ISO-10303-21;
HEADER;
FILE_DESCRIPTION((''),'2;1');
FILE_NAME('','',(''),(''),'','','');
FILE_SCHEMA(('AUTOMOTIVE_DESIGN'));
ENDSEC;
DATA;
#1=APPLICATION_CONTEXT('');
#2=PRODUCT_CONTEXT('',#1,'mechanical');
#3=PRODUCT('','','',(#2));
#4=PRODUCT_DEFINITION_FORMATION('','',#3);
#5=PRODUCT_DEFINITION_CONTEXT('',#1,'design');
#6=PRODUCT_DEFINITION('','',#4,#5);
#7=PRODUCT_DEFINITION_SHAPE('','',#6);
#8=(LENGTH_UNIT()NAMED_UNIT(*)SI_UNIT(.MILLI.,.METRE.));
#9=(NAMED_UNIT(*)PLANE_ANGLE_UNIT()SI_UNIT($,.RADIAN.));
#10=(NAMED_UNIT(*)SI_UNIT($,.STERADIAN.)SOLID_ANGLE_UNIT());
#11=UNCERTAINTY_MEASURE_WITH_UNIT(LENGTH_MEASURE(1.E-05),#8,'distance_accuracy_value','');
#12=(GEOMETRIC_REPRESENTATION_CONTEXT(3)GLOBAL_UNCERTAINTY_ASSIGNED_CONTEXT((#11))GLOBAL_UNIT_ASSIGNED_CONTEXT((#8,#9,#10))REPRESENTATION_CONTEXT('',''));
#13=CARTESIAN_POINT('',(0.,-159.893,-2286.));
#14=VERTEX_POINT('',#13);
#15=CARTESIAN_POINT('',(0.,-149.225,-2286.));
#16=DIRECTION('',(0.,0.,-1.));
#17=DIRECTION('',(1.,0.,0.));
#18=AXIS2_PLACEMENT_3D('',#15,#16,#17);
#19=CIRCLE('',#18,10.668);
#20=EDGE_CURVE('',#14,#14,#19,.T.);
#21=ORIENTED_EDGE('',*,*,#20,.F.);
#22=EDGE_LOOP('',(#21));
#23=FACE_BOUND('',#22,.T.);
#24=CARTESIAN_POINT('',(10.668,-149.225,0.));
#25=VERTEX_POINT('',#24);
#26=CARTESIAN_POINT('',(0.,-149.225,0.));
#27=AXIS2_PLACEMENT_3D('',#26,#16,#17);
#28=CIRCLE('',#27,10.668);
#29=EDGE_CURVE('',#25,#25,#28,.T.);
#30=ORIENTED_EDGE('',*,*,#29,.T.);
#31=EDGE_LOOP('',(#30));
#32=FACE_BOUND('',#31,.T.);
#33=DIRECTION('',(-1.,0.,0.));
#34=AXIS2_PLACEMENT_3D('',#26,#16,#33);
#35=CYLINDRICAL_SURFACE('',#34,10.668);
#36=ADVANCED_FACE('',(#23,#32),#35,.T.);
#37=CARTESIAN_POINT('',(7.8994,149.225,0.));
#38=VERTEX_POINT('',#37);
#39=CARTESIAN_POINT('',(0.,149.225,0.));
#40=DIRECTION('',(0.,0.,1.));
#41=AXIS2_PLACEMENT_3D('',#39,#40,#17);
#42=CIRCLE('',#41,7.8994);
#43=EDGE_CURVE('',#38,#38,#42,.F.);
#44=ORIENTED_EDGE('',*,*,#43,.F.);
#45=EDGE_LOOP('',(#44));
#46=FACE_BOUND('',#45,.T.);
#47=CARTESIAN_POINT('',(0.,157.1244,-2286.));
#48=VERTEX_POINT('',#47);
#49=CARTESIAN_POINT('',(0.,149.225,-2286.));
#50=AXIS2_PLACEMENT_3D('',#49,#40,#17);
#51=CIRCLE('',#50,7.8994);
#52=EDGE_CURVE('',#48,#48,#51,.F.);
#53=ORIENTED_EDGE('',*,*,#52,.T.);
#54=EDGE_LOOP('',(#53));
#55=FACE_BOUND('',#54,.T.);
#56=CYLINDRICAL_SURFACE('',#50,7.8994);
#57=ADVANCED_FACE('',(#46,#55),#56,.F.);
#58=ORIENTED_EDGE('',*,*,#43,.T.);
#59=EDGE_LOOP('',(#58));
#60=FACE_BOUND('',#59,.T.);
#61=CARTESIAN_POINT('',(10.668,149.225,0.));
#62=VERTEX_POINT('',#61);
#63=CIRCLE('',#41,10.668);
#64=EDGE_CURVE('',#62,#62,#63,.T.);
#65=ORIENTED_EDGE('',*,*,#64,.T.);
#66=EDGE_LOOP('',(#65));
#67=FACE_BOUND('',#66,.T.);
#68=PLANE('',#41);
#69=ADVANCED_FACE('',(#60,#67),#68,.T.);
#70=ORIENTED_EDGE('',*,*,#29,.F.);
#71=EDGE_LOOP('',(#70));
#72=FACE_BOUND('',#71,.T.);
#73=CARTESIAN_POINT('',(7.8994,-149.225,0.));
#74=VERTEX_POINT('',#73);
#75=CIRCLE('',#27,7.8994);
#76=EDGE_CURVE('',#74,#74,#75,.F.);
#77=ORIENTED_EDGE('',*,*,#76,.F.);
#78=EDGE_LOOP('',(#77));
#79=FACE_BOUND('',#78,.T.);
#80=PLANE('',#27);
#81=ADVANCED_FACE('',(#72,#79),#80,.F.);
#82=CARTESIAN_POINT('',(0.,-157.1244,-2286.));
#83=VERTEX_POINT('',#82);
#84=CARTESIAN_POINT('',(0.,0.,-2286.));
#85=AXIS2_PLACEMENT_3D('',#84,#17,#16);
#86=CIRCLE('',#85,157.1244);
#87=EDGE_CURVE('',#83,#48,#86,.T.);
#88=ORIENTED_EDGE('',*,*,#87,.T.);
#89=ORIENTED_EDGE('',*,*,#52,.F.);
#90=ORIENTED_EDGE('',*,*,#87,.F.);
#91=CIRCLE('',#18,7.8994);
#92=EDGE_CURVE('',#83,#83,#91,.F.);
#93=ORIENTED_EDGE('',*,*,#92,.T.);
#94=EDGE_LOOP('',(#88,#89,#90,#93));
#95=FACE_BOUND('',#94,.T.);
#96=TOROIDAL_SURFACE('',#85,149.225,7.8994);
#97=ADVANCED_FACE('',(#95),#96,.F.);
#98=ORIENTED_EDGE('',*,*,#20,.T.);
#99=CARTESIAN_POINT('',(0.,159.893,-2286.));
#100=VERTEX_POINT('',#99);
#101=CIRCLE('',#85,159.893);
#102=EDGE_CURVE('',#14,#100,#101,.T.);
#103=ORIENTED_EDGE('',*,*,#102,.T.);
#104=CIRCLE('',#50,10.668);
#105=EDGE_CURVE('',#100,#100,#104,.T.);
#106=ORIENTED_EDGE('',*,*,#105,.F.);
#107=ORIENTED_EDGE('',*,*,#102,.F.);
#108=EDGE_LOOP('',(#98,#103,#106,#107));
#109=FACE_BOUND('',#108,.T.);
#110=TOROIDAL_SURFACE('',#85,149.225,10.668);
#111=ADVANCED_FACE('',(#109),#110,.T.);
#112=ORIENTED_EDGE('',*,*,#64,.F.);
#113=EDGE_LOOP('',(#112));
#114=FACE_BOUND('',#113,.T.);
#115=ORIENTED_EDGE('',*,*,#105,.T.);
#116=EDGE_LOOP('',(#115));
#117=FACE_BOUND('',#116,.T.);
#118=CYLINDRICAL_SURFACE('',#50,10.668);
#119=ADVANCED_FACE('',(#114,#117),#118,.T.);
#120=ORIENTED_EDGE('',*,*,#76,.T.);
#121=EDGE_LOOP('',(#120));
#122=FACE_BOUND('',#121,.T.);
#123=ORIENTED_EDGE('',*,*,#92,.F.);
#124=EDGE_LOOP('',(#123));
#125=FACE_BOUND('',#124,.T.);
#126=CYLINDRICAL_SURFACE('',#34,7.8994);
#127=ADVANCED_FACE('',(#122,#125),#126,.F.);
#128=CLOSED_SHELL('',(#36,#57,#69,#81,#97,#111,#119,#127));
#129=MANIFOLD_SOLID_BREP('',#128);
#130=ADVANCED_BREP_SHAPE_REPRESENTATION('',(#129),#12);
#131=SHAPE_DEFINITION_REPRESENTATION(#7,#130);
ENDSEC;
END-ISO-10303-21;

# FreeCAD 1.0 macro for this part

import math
import FreeCAD as App
import Part
import Sketcher
from FreeCAD import Vector
Q = App.Units.Quantity

doc = App.newDocument("Part")
body = doc.addObject("PartDesign::Body", "Body")

# Sketch on XY plane
sketch1 = doc.addObject("Sketcher::SketchObject", "Sketch")
body.addObject(sketch1)
sketch1.AttachmentSupport = (doc.XY_Plane, [""])
sketch1.MapMode = "FlatFace"
sketch1.addGeometry([
    Part.Circle(Vector(0, 149, 0), Vector(0, 0, 1), 11),
    Part.Circle(Vector(0, 149, 0), Vector(0, 0, 1), 8),
], False)
sketch1.addConstraint([
    Sketcher.Constraint("Coincident", 1, 3, 0, 3),
    Sketcher.Constraint("PointOnObject", 0, 3, -2),
    Sketcher.Constraint("Diameter", 0, Q("0.84 in")),
    Sketcher.Constraint("Diameter", 1, Q("0.622 in")),
    Sketcher.Constraint("DistanceY", -1, 1, 0, 3, Q("5.875 in")),
])

# Sketch on YZ plane
sketch2 = doc.addObject("Sketcher::SketchObject", "Sketch001")
body.addObject(sketch2)
sketch2.AttachmentSupport = (doc.YZ_Plane, [""])
sketch2.MapMode = "FlatFace"
sketch2.addGeometry([
    Part.LineSegment(Vector(149, 0, 0), Vector(149, -2286, 0)),
    Part.ArcOfCircle(Part.Circle(Vector(0, -2286, 0), Vector(0, 0, 1), 149), math.radians(180), math.radians(360)),
    Part.LineSegment(Vector(-149, -2286, 0), Vector(-149, 0, 0)),
], False)
sketch2.addConstraint([
    Sketcher.Constraint("Tangent", 0, 2, 1, 2),
    Sketcher.Constraint("Tangent", 1, 1, 2, 1),
    Sketcher.Constraint("Vertical", 0),
    Sketcher.Constraint("Vertical", 2),
    Sketcher.Constraint("Symmetric", 0, 1, 2, 2, -1, 1),
    Sketcher.Constraint("PointOnObject", 0, 1, -1),
    Sketcher.Constraint("DistanceY", 0, 2, 0, 1, Q("90 in")),
    Sketcher.Constraint("Radius", 1, Q("5.875 in")),
])
doc.recompute()

additivepipe = doc.addObject("PartDesign::AdditivePipe", "AdditivePipe")
body.addObject(additivepipe)
additivepipe.Profile = sketch1
additivepipe.Spine = (sketch2, ["Edge1", "Edge2", "Edge3"])

doc.recompute()
